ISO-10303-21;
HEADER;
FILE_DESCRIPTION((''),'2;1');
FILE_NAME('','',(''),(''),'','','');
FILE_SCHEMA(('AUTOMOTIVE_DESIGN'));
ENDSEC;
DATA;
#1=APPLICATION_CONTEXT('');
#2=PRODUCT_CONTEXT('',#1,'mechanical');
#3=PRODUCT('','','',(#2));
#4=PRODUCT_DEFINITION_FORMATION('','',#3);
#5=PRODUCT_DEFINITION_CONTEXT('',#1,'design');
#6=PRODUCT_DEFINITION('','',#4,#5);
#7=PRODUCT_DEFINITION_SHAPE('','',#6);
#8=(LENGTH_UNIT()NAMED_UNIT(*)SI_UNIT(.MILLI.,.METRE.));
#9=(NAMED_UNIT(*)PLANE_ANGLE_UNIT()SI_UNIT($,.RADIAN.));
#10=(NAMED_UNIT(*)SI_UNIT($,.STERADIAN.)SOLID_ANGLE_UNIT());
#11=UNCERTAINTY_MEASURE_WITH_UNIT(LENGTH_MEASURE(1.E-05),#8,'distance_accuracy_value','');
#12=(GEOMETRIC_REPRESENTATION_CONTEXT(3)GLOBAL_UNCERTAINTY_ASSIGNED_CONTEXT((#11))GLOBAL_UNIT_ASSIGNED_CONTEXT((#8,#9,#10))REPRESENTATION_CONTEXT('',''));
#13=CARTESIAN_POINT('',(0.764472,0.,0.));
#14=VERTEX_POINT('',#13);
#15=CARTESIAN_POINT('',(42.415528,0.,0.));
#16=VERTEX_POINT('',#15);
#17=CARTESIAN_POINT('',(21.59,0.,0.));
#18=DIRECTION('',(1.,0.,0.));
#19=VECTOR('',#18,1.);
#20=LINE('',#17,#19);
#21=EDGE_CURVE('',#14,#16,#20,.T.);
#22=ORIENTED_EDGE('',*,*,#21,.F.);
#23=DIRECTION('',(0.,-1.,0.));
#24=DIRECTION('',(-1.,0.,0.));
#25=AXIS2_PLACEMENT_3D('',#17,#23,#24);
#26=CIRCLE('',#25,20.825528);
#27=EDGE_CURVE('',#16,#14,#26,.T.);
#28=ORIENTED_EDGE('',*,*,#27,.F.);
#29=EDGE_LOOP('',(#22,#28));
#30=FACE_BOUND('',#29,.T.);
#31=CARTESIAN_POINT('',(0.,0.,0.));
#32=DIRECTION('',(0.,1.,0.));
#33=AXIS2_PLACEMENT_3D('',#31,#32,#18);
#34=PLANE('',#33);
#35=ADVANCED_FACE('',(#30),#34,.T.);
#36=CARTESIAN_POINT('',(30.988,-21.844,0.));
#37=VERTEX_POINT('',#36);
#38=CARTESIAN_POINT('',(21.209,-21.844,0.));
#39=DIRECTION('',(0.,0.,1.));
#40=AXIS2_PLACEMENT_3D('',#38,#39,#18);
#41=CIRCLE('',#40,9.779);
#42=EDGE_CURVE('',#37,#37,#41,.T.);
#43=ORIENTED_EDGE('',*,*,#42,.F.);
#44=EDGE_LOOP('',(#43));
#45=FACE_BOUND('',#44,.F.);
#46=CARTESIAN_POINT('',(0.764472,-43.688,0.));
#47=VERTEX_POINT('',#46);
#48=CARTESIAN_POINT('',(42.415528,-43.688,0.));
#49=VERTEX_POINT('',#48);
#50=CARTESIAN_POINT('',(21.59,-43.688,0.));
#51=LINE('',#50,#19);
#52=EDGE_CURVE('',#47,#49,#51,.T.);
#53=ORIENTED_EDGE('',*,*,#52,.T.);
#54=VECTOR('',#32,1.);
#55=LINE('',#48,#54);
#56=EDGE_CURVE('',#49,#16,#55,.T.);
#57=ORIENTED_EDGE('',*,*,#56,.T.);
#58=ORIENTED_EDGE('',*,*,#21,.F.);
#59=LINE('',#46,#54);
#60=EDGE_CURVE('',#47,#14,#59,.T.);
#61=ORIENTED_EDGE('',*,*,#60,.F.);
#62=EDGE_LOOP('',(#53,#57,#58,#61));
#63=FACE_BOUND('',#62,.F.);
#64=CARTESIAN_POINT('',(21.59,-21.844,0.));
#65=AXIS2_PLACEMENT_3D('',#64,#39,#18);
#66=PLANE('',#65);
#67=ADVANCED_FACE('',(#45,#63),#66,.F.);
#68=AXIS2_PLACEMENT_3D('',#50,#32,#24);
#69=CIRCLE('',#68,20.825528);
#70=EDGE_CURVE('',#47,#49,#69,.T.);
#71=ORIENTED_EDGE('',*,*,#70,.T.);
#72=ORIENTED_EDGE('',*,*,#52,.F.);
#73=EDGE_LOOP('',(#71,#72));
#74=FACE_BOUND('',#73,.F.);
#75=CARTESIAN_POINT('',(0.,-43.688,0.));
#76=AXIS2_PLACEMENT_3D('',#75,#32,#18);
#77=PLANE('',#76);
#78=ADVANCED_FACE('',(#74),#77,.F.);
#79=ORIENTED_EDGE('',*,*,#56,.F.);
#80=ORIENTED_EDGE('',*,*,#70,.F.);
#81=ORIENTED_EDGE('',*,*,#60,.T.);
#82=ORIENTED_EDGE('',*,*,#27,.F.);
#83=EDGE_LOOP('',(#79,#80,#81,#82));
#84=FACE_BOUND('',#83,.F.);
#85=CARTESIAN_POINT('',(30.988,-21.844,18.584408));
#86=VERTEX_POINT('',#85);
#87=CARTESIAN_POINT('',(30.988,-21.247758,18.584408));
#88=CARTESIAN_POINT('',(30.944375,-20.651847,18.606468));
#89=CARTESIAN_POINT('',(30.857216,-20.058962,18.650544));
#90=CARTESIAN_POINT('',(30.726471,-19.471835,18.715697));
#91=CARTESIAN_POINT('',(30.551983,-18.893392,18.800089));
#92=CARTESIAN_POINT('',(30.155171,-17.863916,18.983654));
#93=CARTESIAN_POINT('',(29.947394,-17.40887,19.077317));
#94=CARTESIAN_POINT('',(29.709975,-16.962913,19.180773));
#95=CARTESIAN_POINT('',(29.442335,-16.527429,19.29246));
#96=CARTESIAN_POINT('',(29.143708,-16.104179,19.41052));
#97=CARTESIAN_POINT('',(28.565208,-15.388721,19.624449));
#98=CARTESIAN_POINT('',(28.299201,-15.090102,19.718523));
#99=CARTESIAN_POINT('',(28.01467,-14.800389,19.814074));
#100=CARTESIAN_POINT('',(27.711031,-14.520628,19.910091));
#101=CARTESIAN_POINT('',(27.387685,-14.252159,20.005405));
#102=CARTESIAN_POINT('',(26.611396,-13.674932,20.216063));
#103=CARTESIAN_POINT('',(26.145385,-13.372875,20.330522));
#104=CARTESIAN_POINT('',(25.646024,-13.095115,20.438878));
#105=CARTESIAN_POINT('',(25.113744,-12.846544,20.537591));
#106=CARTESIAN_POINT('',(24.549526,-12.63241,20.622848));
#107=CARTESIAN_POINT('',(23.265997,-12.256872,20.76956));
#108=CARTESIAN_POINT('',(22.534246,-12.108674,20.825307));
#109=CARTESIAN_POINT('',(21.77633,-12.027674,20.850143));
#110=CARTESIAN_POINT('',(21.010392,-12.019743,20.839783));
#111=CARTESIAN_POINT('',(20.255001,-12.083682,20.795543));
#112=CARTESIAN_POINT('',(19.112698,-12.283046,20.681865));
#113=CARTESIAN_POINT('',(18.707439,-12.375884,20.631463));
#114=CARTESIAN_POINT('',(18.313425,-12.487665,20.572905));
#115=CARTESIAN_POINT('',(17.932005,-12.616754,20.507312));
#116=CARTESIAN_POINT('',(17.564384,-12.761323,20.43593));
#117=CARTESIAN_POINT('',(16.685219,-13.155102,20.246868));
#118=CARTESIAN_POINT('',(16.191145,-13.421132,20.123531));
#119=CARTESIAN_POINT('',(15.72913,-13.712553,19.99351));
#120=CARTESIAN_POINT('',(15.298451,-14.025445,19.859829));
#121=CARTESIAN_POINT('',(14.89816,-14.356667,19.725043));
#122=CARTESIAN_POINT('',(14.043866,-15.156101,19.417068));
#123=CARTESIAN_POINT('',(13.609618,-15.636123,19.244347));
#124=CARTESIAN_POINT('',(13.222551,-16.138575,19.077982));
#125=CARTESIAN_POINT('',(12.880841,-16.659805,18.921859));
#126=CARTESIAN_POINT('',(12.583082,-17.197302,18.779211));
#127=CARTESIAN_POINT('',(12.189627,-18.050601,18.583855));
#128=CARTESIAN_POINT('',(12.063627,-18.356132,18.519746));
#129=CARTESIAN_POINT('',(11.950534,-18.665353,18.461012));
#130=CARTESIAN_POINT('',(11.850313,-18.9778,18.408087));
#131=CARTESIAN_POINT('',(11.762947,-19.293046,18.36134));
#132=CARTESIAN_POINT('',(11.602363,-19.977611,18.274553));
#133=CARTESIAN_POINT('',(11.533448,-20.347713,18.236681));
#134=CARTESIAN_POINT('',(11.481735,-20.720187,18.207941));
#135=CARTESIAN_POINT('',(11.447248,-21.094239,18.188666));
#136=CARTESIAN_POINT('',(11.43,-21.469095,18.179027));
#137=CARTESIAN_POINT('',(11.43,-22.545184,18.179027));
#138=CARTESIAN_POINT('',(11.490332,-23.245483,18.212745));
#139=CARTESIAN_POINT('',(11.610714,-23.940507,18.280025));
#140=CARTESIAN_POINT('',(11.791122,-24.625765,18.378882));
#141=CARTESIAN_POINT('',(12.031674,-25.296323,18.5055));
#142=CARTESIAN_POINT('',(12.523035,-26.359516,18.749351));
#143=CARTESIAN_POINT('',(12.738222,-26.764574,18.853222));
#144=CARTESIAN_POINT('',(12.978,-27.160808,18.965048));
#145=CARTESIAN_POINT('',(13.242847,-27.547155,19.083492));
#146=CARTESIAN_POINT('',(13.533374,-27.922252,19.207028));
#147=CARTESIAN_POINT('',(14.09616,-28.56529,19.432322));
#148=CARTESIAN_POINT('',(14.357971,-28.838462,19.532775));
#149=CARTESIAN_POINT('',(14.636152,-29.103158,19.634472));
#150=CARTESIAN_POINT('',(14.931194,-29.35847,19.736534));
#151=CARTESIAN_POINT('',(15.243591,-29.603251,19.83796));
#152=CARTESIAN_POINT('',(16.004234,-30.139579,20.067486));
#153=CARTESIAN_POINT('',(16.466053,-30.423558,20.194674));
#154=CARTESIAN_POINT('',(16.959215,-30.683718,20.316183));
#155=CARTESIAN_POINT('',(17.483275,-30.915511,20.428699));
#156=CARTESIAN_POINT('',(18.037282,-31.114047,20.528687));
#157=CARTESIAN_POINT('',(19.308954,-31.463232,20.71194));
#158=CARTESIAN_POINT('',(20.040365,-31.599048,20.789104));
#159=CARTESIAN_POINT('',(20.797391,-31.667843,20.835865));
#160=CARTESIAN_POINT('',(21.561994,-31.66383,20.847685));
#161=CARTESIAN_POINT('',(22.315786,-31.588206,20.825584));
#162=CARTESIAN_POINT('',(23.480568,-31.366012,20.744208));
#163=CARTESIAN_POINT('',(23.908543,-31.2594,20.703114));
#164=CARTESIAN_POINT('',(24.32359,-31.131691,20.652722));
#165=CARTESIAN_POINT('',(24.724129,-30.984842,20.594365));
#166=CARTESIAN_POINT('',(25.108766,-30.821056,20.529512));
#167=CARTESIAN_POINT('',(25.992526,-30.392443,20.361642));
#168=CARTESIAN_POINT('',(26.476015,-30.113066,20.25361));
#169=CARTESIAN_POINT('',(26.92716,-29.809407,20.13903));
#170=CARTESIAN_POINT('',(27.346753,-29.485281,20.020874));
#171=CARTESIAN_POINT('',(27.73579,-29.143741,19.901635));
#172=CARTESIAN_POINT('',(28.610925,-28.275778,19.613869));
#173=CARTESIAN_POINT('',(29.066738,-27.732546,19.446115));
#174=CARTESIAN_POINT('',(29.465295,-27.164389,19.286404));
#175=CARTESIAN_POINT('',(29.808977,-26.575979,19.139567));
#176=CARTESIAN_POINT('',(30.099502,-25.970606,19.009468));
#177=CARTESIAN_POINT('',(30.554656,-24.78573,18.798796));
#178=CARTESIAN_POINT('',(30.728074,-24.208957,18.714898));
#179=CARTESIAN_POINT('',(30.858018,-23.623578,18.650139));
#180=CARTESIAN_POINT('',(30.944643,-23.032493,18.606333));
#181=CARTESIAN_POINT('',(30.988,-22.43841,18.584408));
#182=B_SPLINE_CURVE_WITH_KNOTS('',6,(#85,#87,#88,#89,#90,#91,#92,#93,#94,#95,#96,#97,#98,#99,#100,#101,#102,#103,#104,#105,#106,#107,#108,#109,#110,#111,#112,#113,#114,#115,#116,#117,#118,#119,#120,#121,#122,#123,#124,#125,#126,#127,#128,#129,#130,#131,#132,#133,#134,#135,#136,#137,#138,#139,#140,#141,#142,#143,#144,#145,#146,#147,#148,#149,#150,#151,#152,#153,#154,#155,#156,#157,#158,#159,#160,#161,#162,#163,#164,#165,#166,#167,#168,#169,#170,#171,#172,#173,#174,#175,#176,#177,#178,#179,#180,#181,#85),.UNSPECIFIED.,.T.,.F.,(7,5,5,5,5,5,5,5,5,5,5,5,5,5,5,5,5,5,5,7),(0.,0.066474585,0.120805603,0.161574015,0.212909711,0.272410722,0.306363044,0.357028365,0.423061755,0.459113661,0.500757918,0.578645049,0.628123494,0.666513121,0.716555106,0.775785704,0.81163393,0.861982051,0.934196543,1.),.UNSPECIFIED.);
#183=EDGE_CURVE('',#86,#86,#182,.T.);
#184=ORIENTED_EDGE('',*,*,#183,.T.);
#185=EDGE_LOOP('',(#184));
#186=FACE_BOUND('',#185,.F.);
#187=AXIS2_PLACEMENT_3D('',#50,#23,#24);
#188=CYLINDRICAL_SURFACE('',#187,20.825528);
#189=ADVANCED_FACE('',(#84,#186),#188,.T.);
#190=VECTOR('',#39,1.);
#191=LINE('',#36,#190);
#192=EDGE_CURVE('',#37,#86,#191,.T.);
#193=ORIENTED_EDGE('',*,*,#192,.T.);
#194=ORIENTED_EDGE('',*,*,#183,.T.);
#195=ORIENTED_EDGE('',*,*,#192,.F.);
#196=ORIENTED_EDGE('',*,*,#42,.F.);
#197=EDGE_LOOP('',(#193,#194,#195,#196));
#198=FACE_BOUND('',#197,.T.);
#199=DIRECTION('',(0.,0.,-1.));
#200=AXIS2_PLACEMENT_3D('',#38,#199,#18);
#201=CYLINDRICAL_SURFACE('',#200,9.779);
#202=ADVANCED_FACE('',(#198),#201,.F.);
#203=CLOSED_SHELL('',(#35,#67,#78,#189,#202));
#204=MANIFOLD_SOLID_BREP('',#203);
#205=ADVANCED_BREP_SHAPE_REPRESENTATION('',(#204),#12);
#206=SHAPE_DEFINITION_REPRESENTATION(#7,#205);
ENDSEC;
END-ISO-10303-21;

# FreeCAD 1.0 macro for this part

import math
import FreeCAD as App
import Part
import Sketcher
from FreeCAD import Vector
Q = App.Units.Quantity


def add_polygon(sketch, points):
    """Adds a closed chain of lines whose ends are joined by coincident constraints."""
    first, n = sketch.GeometryCount, len(points)
    for a, b in zip(points, points[1:] + points[:1]):
        sketch.addGeometry(Part.LineSegment(App.Vector(*a, 0), App.Vector(*b, 0)), False)
    for i in range(n):
        sketch.addConstraint(Sketcher.Constraint("Coincident", first + i, 2, first + (i + 1) % n, 1))

doc = App.newDocument("Part")
body = doc.addObject("PartDesign::Body", "Body")

# Sketch on XY plane
sketch1 = doc.addObject("Sketcher::SketchObject", "Sketch")
body.addObject(sketch1)
sketch1.AttachmentSupport = (doc.XY_Plane, [""])
sketch1.MapMode = "FlatFace"
add_polygon(sketch1, [(0, 0), (0, -43.688), (43.18, -43.688), (43.18, 0)])  # lines 0-3
sketch1.addGeometry(Part.Circle(Vector(21.209, -21.844, 0), Vector(0, 0, 1), 9.779), False)  # 4
sketch1.addConstraint([
    Sketcher.Constraint("Vertical", 0),
    Sketcher.Constraint("Horizontal", 1),
    Sketcher.Constraint("Vertical", 2),
    Sketcher.Constraint("Horizontal", 3),
    Sketcher.Constraint("Coincident", 3, 2, -1, 1),
    Sketcher.Constraint("Diameter", 4, Q("0.77 in")),
    Sketcher.Constraint("DistanceX", 1, 1, 1, 2, Q("1.7 in")),
    Sketcher.Constraint("DistanceY", 0, 2, 0, 1, Q("1.72 in")),
    Sketcher.Constraint("DistanceY", 4, 3, -1, 1, Q("0.86 in")),
    Sketcher.Constraint("DistanceX", -1, 1, 4, 3, Q("0.835 in")),
])
pad1 = doc.addObject("PartDesign::Pad", "Pad")
body.addObject(pad1)
pad1.Profile = sketch1
pad1.Length = Q("0.82 in")

# Sketch on XZ plane
sketch2 = doc.addObject("Sketcher::SketchObject", "Sketch001")
body.addObject(sketch2)
sketch2.AttachmentSupport = (doc.XZ_Plane, [""])
sketch2.MapMode = "FlatFace"
sketch2.AttachmentOffset = App.Placement(Vector(0, 0, 1.72 * 25.4), App.Rotation())
sketch2.addGeometry([
    Part.ArcOfCircle(Part.Circle(Vector(21.59, 0, 0), Vector(0, 0, 1), 20.825528), math.radians(0), math.radians(180)),  # 0
    Part.LineSegment(Vector(42.415528, 0, 0), Vector(43.18, 0, 0)),  # 1
    Part.LineSegment(Vector(43.18, 0, 0), Vector(43.18, 20.828, 0)),  # 2
    Part.LineSegment(Vector(43.18, 20.828, 0), Vector(0, 20.828, 0)),  # 3
    Part.LineSegment(Vector(0, 20.828, 0), Vector(0, 0, 0)),  # 4
    Part.LineSegment(Vector(0, 0, 0), Vector(0.764472, 0, 0)),  # 5
], False)
sketch2.addConstraint([
    Sketcher.Constraint("Coincident", 0, 1, 1, 1),
    Sketcher.Constraint("Coincident", 1, 2, 2, 1),
    Sketcher.Constraint("Coincident", 2, 2, 3, 1),
    Sketcher.Constraint("Coincident", 3, 2, 4, 1),
    Sketcher.Constraint("Coincident", 4, 2, 5, 1),
    Sketcher.Constraint("Coincident", 5, 2, 0, 2),
    Sketcher.Constraint("Horizontal", 1),
    Sketcher.Constraint("Vertical", 2),
    Sketcher.Constraint("Horizontal", 3),
    Sketcher.Constraint("Vertical", 4),
    Sketcher.Constraint("Horizontal", 5),
    Sketcher.Constraint("Coincident", 4, 2, -1, 1),
    Sketcher.Constraint("PointOnObject", 0, 3, -1),
    Sketcher.Constraint("PointOnObject", 0, 1, -1),
    Sketcher.Constraint("Equal", 1, 5),
    Sketcher.Constraint("DistanceX", 3, 2, 3, 1, Q("1.7 in")),
    Sketcher.Constraint("DistanceY", 2, 1, 2, 2, Q("0.82 in")),
    Sketcher.Constraint("Radius", 0, 20.825528),
])
pocket1 = doc.addObject("PartDesign::Pocket", "Pocket")
body.addObject(pocket1)
pocket1.Profile = sketch2
pocket1.Type = "ThroughAll"

doc.recompute()
